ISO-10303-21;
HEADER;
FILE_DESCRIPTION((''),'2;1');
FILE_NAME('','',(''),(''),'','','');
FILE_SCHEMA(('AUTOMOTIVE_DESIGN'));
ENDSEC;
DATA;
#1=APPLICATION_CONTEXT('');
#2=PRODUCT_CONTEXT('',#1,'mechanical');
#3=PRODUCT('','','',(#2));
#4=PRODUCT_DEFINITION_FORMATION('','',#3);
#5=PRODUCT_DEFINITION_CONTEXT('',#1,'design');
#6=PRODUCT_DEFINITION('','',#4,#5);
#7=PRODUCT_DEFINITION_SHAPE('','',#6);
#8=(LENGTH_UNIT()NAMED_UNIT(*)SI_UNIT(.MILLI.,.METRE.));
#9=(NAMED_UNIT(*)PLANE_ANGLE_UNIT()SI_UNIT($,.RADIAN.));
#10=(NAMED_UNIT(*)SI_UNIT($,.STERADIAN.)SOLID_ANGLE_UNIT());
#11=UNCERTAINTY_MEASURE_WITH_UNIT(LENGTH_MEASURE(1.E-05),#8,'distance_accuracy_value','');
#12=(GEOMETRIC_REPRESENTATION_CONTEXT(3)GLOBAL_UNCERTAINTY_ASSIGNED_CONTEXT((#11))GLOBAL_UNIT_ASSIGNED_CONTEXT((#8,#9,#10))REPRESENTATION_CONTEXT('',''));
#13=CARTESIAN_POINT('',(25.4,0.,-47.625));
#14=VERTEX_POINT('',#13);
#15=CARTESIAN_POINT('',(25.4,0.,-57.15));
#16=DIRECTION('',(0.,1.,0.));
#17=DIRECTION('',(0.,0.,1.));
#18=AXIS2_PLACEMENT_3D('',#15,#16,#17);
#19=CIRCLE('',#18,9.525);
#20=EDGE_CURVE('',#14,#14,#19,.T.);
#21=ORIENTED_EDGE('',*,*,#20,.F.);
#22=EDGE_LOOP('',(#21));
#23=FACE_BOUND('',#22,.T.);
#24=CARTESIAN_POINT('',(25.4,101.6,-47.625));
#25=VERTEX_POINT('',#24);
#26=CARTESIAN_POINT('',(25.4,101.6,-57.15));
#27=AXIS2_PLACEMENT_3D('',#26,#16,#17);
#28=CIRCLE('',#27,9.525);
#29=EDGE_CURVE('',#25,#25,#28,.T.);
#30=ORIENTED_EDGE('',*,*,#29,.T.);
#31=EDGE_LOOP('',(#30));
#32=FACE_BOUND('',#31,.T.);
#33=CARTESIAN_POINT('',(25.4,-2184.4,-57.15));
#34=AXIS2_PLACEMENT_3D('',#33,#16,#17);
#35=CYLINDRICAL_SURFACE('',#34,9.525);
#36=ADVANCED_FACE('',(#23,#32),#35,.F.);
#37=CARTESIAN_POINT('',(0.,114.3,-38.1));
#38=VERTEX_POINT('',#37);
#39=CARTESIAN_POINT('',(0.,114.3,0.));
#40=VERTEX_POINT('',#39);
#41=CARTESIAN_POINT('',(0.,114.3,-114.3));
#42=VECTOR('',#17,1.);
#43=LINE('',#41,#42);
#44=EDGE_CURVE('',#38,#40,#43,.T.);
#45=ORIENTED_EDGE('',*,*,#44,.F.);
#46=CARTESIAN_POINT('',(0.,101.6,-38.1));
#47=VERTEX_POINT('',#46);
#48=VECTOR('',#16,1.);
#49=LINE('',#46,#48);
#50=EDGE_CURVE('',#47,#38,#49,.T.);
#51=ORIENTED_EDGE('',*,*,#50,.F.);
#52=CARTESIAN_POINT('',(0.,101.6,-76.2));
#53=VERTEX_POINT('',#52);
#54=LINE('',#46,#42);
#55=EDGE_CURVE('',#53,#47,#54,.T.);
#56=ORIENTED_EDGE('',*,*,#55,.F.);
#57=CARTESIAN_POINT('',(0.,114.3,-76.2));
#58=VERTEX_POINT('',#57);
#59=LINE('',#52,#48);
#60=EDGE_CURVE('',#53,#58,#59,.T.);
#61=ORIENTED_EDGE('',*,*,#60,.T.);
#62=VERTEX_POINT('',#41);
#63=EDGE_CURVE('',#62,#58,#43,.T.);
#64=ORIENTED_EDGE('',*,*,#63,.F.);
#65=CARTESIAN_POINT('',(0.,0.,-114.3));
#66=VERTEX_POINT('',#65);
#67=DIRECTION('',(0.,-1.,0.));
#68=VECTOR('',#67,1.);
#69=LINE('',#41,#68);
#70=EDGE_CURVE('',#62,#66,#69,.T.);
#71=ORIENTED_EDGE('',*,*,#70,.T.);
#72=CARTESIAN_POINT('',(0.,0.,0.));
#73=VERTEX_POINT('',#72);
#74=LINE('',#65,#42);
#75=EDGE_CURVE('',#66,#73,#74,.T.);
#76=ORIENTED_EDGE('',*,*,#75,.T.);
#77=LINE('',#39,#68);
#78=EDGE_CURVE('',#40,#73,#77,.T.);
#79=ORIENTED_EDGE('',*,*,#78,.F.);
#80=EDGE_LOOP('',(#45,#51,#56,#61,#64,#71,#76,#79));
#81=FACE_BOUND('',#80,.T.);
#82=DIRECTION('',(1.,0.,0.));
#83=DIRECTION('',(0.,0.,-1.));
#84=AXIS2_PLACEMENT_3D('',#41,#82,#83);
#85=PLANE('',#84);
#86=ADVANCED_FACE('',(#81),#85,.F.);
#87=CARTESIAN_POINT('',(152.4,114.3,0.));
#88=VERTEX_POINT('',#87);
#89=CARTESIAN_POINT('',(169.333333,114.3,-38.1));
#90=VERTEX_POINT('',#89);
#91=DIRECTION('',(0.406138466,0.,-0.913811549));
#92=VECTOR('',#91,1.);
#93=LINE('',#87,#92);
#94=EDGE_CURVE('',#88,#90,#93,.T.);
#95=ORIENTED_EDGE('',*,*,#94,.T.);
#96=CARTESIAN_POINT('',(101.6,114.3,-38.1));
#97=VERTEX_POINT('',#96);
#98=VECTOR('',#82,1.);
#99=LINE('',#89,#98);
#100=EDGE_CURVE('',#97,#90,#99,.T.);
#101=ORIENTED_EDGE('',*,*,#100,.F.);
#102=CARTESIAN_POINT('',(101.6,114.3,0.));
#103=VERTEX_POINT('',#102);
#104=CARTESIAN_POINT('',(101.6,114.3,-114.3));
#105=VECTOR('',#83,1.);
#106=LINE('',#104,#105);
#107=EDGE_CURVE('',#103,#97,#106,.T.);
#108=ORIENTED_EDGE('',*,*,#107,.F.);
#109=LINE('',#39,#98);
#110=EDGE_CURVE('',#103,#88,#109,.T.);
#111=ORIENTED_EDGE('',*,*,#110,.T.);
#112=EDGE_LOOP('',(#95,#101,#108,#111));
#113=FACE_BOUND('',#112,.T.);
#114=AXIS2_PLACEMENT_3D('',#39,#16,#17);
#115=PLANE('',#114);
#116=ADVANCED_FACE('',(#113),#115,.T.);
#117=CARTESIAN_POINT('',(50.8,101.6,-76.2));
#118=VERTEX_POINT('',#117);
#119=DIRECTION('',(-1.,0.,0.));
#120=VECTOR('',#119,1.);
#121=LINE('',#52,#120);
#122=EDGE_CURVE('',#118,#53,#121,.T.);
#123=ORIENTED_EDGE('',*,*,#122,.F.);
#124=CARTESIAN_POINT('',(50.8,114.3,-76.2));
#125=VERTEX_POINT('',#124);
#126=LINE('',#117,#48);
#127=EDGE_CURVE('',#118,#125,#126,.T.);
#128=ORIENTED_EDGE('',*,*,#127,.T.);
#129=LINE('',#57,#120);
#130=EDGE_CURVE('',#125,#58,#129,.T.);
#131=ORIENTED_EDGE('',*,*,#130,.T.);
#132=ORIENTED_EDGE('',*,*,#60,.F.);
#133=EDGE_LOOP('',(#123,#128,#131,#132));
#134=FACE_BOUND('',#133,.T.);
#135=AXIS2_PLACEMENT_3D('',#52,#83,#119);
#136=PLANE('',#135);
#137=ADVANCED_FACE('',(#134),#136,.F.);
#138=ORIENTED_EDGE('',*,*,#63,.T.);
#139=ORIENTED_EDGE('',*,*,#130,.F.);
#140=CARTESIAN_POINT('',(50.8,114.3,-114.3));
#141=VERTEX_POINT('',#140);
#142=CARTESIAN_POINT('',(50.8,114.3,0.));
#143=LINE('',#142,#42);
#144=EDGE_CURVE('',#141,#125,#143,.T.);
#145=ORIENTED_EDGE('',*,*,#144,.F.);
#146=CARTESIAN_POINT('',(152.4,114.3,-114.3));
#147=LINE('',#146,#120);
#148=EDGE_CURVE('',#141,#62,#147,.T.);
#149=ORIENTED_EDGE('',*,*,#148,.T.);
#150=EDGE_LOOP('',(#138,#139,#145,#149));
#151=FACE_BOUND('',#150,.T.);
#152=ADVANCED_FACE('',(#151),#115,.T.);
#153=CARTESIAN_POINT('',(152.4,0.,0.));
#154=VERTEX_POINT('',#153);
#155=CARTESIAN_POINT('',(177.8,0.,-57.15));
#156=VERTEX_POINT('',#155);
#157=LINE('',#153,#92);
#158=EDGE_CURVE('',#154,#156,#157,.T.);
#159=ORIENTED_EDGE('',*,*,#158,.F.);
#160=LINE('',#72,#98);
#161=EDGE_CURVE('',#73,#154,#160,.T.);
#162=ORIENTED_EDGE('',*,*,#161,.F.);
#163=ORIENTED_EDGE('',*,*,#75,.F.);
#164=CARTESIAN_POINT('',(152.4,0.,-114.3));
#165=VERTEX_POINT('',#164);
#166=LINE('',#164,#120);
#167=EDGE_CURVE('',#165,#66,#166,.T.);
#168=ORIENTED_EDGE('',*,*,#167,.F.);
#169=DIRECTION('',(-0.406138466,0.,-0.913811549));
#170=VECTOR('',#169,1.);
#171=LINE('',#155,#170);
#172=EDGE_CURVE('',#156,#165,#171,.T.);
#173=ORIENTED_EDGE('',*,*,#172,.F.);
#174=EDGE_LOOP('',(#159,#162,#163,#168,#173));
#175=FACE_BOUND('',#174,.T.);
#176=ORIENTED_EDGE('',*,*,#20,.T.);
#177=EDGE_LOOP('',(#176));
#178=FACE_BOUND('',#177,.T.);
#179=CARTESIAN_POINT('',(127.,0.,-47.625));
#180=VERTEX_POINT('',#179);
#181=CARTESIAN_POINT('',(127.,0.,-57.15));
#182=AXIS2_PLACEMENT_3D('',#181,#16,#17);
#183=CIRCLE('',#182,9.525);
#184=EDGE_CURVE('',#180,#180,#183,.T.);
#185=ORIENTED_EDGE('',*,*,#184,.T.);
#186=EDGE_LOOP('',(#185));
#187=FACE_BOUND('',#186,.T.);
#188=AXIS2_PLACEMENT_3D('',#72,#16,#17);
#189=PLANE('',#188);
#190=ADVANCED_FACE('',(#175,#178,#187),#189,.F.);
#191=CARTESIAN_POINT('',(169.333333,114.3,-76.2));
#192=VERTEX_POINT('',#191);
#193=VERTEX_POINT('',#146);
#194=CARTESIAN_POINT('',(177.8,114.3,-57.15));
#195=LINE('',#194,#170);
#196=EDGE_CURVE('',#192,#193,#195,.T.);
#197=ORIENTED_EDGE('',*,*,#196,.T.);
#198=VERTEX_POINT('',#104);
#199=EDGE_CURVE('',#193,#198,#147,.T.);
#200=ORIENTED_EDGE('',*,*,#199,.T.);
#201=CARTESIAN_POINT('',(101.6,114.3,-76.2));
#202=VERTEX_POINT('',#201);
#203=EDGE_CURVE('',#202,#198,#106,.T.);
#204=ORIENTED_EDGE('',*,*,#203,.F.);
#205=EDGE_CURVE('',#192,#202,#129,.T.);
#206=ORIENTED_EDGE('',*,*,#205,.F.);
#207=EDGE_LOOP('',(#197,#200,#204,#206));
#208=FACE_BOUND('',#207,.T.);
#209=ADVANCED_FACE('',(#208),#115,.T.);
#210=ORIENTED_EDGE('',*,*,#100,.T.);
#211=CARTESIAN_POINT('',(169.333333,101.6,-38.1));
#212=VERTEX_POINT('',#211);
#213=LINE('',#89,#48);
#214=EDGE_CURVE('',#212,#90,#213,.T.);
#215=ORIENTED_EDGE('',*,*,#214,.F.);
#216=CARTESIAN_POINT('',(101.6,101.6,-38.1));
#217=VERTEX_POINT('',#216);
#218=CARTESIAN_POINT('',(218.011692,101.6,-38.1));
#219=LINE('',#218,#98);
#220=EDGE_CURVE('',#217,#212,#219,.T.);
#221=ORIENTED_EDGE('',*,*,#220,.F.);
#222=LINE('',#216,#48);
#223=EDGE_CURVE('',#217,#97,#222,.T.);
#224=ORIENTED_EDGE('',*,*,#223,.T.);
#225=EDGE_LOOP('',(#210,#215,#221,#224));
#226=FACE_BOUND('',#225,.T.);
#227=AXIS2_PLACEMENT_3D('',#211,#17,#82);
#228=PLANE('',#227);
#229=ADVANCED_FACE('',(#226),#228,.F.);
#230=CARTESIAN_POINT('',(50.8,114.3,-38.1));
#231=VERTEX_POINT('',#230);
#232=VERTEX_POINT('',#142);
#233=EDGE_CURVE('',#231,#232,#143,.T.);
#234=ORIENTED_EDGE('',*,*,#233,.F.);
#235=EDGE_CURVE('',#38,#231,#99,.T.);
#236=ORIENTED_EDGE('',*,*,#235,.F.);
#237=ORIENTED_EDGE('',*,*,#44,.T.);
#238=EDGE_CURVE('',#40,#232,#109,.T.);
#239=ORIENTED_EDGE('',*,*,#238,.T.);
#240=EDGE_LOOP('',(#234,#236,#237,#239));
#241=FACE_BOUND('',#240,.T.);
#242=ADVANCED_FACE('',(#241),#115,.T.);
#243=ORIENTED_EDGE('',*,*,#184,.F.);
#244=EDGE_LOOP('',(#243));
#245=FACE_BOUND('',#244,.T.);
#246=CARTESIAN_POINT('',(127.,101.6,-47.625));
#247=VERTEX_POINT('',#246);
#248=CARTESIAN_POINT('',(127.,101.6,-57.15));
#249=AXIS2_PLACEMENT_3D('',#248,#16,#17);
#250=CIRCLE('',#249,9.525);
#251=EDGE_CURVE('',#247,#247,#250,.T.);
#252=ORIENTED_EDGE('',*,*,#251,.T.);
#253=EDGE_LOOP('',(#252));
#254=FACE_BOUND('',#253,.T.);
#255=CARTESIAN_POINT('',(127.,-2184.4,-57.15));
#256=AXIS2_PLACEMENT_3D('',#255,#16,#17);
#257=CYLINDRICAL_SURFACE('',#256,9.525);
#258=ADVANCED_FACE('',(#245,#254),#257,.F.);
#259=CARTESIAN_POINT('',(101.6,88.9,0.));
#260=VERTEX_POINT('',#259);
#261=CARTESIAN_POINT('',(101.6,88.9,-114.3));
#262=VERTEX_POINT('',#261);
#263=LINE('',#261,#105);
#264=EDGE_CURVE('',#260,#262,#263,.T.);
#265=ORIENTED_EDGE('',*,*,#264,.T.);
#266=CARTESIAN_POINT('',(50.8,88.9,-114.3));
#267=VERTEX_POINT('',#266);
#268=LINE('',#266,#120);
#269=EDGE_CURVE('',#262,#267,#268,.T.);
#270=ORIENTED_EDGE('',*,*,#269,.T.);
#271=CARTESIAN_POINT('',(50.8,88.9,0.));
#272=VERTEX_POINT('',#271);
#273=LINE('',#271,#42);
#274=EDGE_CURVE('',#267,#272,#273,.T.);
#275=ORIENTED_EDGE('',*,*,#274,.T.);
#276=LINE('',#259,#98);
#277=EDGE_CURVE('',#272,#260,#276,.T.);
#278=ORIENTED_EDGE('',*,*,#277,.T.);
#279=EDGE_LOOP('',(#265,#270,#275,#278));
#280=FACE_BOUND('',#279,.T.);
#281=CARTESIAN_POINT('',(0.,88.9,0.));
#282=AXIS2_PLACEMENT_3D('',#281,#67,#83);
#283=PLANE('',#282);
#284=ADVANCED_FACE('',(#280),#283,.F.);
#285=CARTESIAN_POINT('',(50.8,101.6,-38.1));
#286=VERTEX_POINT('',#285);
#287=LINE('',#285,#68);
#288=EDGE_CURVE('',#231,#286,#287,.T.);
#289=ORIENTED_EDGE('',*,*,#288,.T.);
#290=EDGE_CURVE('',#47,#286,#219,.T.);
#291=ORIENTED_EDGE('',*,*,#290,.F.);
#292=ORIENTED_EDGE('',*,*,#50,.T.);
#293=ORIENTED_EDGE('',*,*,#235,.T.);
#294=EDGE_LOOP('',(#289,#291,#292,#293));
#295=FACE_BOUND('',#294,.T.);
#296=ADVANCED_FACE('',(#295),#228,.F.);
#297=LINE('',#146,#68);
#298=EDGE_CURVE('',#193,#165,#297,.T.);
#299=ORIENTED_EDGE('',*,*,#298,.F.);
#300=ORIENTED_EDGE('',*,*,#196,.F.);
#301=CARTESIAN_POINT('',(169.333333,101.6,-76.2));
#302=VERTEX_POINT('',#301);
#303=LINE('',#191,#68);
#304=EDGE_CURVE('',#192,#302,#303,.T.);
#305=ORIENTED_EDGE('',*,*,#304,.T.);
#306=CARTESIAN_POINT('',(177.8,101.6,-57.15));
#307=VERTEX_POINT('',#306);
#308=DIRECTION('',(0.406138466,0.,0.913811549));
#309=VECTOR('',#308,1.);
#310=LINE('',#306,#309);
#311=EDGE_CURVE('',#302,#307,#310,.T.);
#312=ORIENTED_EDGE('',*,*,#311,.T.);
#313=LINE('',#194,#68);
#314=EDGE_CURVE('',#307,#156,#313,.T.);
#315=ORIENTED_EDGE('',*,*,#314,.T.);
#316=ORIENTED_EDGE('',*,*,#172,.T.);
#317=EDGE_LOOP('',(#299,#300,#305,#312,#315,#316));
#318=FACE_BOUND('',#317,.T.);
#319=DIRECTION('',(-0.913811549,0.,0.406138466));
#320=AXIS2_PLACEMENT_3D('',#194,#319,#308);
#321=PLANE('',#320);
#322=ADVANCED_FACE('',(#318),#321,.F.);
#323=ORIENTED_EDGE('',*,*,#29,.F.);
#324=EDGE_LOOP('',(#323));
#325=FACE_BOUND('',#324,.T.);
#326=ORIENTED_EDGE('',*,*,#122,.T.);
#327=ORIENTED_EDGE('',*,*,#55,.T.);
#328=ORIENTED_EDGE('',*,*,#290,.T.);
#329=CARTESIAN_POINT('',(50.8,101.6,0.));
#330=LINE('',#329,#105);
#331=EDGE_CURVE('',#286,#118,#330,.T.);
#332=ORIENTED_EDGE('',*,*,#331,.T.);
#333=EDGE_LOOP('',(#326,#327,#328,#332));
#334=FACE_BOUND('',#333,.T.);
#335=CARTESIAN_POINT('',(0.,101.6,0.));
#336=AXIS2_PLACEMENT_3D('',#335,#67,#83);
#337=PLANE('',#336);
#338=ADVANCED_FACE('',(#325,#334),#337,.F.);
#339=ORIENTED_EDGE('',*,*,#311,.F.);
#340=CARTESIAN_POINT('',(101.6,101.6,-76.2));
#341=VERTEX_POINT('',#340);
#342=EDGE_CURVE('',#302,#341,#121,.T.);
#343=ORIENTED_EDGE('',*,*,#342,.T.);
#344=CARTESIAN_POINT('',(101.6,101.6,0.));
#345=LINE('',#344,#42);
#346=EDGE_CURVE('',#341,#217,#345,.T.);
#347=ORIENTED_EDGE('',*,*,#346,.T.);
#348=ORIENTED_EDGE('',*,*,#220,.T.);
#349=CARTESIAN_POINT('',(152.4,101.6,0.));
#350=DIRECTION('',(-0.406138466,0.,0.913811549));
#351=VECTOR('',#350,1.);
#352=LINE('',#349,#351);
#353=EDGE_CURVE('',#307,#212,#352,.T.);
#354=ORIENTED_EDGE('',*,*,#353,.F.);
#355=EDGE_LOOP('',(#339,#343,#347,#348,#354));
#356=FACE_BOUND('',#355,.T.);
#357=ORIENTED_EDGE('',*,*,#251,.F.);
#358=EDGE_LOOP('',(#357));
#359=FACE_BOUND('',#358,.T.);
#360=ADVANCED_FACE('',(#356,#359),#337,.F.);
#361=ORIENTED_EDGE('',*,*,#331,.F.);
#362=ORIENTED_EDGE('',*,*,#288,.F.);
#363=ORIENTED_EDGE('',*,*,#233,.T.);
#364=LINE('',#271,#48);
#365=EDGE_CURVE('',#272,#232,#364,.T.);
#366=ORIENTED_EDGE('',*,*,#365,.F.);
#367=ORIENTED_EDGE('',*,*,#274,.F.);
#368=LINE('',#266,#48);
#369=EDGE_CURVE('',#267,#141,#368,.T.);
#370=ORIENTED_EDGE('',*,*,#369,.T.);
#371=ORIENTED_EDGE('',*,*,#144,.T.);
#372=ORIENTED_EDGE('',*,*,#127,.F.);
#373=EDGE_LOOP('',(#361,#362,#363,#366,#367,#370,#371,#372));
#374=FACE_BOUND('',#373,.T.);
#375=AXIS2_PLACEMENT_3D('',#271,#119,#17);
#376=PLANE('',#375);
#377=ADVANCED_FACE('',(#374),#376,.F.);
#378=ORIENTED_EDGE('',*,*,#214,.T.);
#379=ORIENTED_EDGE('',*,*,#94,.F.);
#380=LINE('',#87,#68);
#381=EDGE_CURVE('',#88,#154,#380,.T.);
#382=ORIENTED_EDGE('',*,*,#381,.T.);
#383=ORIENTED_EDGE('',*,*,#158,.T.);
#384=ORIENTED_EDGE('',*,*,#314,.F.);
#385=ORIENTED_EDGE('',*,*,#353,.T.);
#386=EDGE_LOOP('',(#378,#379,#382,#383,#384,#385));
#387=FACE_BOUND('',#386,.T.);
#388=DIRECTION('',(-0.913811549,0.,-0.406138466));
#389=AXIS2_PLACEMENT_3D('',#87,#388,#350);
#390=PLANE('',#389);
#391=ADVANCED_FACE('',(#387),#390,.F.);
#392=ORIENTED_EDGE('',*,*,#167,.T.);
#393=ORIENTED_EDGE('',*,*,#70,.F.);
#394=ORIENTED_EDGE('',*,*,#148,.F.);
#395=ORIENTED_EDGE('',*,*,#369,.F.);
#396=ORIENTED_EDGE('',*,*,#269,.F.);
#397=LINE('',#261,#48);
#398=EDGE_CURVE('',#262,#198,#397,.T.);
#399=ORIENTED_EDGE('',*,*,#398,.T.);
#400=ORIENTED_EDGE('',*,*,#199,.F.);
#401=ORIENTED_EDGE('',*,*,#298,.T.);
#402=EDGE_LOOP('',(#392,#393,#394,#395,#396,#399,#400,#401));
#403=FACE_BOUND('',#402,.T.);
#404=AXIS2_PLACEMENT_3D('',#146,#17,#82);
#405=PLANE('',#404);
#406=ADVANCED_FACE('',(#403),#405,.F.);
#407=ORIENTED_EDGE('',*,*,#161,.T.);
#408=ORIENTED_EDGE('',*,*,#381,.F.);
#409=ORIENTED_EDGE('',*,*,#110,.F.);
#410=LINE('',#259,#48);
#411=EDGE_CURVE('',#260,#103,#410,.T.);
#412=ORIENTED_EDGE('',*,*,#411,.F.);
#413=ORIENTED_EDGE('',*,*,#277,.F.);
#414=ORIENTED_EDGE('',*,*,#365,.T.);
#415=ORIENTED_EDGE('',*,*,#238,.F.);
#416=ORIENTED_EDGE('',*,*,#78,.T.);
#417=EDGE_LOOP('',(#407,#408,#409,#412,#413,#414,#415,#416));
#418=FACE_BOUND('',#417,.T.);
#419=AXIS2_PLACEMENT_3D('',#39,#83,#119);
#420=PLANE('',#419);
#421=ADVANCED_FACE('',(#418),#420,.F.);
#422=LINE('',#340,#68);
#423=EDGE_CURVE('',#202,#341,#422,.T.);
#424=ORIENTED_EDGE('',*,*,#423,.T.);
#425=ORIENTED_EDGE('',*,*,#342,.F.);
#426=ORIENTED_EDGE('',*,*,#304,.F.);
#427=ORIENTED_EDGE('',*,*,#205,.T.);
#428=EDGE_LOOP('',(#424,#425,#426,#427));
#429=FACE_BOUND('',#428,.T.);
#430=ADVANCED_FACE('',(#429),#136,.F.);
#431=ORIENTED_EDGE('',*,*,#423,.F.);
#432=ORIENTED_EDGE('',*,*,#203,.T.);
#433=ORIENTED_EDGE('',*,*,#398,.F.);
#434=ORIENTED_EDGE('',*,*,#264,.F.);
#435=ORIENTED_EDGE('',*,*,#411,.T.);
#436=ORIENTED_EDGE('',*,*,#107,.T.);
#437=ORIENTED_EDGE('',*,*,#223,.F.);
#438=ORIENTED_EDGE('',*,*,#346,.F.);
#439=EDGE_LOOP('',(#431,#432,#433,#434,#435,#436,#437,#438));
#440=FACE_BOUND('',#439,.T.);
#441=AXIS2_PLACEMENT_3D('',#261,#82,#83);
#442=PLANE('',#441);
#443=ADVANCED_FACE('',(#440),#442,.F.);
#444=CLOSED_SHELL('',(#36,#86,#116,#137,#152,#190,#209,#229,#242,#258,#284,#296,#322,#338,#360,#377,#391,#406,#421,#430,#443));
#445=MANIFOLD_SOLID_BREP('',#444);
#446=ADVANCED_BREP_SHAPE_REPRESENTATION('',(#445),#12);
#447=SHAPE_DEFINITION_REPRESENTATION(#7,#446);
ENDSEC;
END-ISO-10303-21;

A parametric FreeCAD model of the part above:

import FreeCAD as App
import Part
import Sketcher

V = App.Vector
Q = App.Units.Quantity


def add_polygon(sketch, points):
    """Adds a closed chain of lines whose ends are joined by coincident constraints."""
    first, n = sketch.GeometryCount, len(points)
    for a, b in zip(points, points[1:] + points[:1]):
        sketch.addGeometry(Part.LineSegment(App.Vector(*a, 0), App.Vector(*b, 0)), False)
    for i in range(n):
        sketch.addConstraint(Sketcher.Constraint("Coincident", first + i, 2, first + (i + 1) % n, 1))

doc = App.newDocument("Part")
body = doc.addObject("PartDesign::Body", "Body")

# Sketch on XZ plane
sketch1 = doc.addObject("Sketcher::SketchObject", "Sketch")
body.addObject(sketch1)
sketch1.AttachmentSupport = (doc.XZ_Plane, [""])
sketch1.MapMode = "FlatFace"
add_polygon(sketch1, [(0, 0), (152, 0), (178, -57), (152, -114), (0, -114)])  # lines 0-4
sketch1.addConstraint(Sketcher.Constraint("Horizontal", 0))
sketch1.addConstraint(Sketcher.Constraint("Horizontal", 3))
sketch1.addConstraint(Sketcher.Constraint("Vertical", 4))
sketch1.addConstraint(Sketcher.Constraint("Coincident", 4, 2, -1, 1))
sketch1.addConstraint(Sketcher.Constraint("Vertical", 0, 2, 2, 2))
sketch1.addConstraint(Sketcher.Constraint("Equal", 1, 2))
sketch1.addConstraint(Sketcher.Constraint("DistanceX", 0, 1, 0, 2, Q("6 in")))
sketch1.addConstraint(Sketcher.Constraint("DistanceY", 4, 1, 4, 2, Q("4.5 in")))
sketch1.addConstraint(Sketcher.Constraint("DistanceX", -1, 1, 1, 2, Q("7 in")))
pad1 = doc.addObject("PartDesign::Pad", "Pad")
body.addObject(pad1)
pad1.Profile = sketch1
pad1.Length = Q("4.5 in")
pad1.Reversed = True

# Sketch on XZ plane
sketch2 = doc.addObject("Sketcher::SketchObject", "Sketch001")
body.addObject(sketch2)
sketch2.AttachmentSupport = (doc.XZ_Plane, [""])
sketch2.MapMode = "FlatFace"
sketch2.AttachmentOffset = App.Placement(V(0, 0, -4.5 * 25.4), App.Rotation())
add_polygon(sketch2, [(0, -38), (218, -38), (268, -76), (0, -76)])  # lines 0-3
sketch2.addConstraint(Sketcher.Constraint("Horizontal", 0))
sketch2.addConstraint(Sketcher.Constraint("Horizontal", 2))
sketch2.addConstraint(Sketcher.Constraint("Vertical", 3))
sketch2.addConstraint(Sketcher.Constraint("PointOnObject", 2, 2, -2))
sketch2.addConstraint(Sketcher.Constraint("DistanceY", 3, 1, 3, 2, Q("1.5 in")))
sketch2.addConstraint(Sketcher.Constraint("DistanceY", 1, 2, -1, 1, Q("3 in")))
sketch2.addConstraint(Sketcher.Constraint("DistanceX", 2, 2, 2, 1, Q("267.804009 mm")))
sketch2.addConstraint(Sketcher.Constraint("Distance", 1, Q("62.696769 mm")))
pocket1 = doc.addObject("PartDesign::Pocket", "Pocket")
body.addObject(pocket1)
pocket1.Profile = sketch2
pocket1.Length = Q("0.5 in")
pocket1.Reversed = True

# Sketch on XZ plane
sketch3 = doc.addObject("Sketcher::SketchObject", "Sketch002")
body.addObject(sketch3)
sketch3.AttachmentSupport = (doc.XZ_Plane, [""])
sketch3.MapMode = "FlatFace"
sketch3.AttachmentOffset = App.Placement(V(0, 0, -4.5 * 25.4), App.Rotation())
add_polygon(sketch3, [(51, -114), (51, 0), (102, 0), (102, -114)])  # lines 0-3
sketch3.addConstraint(Sketcher.Constraint("Vertical", 0))
sketch3.addConstraint(Sketcher.Constraint("Horizontal", 1))
sketch3.addConstraint(Sketcher.Constraint("Vertical", 2))
sketch3.addConstraint(Sketcher.Constraint("Horizontal", 3))
sketch3.addConstraint(Sketcher.Constraint("PointOnObject", 0, 2, -1))
sketch3.addConstraint(Sketcher.Constraint("DistanceX", 1, 1, 1, 2, Q("2 in")))
sketch3.addConstraint(Sketcher.Constraint("DistanceY", 0, 1, 0, 2, Q("4.5 in")))
sketch3.addConstraint(Sketcher.Constraint("DistanceX", -1, 1, 0, 2, Q("2 in")))
pocket2 = doc.addObject("PartDesign::Pocket", "Pocket001")
body.addObject(pocket2)
pocket2.Profile = sketch3
pocket2.Length = Q("1 in")
pocket2.Reversed = True

# Sketch on XZ plane
sketch4 = doc.addObject("Sketcher::SketchObject", "Sketch003")
body.addObject(sketch4)
sketch4.AttachmentSupport = (doc.XZ_Plane, [""])
sketch4.MapMode = "FlatFace"
sketch4.AttachmentOffset = App.Placement(V(0, 0, -4 * 25.4), App.Rotation())
sketch4.addGeometry(Part.Circle(V(127, -57, 0), V(0, 0, 1), 10), False)
sketch4.addConstraint(Sketcher.Constraint("Diameter", 0, Q("0.75 in")))
sketch4.addConstraint(Sketcher.Constraint("DistanceX", -1, 1, 0, 3, Q("5 in")))
sketch4.addConstraint(Sketcher.Constraint("DistanceY", 0, 3, -1, 1, Q("2.25 in")))
pocket3 = doc.addObject("PartDesign::Pocket", "Pocket002")
body.addObject(pocket3)
pocket3.Profile = sketch4
pocket3.Length = Q("90 in")
pocket3.Reversed = True

# Sketch on XZ plane
sketch5 = doc.addObject("Sketcher::SketchObject", "Sketch004")
body.addObject(sketch5)
sketch5.AttachmentSupport = (doc.XZ_Plane, [""])
sketch5.MapMode = "FlatFace"
sketch5.AttachmentOffset = App.Placement(V(0, 0, -4 * 25.4), App.Rotation())
sketch5.addGeometry(Part.Circle(V(25, -57, 0), V(0, 0, 1), 10), False)
sketch5.addConstraint(Sketcher.Constraint("Diameter", 0, Q("0.75 in")))
sketch5.addConstraint(Sketcher.Constraint("DistanceX", -1, 1, 0, 3, Q("1 in")))
sketch5.addConstraint(Sketcher.Constraint("DistanceY", 0, 3, -1, 1, Q("2.25 in")))
pocket4 = doc.addObject("PartDesign::Pocket", "Pocket003")
body.addObject(pocket4)
pocket4.Profile = sketch5
pocket4.Length = Q("90 in")
pocket4.Reversed = True

doc.recompute()
